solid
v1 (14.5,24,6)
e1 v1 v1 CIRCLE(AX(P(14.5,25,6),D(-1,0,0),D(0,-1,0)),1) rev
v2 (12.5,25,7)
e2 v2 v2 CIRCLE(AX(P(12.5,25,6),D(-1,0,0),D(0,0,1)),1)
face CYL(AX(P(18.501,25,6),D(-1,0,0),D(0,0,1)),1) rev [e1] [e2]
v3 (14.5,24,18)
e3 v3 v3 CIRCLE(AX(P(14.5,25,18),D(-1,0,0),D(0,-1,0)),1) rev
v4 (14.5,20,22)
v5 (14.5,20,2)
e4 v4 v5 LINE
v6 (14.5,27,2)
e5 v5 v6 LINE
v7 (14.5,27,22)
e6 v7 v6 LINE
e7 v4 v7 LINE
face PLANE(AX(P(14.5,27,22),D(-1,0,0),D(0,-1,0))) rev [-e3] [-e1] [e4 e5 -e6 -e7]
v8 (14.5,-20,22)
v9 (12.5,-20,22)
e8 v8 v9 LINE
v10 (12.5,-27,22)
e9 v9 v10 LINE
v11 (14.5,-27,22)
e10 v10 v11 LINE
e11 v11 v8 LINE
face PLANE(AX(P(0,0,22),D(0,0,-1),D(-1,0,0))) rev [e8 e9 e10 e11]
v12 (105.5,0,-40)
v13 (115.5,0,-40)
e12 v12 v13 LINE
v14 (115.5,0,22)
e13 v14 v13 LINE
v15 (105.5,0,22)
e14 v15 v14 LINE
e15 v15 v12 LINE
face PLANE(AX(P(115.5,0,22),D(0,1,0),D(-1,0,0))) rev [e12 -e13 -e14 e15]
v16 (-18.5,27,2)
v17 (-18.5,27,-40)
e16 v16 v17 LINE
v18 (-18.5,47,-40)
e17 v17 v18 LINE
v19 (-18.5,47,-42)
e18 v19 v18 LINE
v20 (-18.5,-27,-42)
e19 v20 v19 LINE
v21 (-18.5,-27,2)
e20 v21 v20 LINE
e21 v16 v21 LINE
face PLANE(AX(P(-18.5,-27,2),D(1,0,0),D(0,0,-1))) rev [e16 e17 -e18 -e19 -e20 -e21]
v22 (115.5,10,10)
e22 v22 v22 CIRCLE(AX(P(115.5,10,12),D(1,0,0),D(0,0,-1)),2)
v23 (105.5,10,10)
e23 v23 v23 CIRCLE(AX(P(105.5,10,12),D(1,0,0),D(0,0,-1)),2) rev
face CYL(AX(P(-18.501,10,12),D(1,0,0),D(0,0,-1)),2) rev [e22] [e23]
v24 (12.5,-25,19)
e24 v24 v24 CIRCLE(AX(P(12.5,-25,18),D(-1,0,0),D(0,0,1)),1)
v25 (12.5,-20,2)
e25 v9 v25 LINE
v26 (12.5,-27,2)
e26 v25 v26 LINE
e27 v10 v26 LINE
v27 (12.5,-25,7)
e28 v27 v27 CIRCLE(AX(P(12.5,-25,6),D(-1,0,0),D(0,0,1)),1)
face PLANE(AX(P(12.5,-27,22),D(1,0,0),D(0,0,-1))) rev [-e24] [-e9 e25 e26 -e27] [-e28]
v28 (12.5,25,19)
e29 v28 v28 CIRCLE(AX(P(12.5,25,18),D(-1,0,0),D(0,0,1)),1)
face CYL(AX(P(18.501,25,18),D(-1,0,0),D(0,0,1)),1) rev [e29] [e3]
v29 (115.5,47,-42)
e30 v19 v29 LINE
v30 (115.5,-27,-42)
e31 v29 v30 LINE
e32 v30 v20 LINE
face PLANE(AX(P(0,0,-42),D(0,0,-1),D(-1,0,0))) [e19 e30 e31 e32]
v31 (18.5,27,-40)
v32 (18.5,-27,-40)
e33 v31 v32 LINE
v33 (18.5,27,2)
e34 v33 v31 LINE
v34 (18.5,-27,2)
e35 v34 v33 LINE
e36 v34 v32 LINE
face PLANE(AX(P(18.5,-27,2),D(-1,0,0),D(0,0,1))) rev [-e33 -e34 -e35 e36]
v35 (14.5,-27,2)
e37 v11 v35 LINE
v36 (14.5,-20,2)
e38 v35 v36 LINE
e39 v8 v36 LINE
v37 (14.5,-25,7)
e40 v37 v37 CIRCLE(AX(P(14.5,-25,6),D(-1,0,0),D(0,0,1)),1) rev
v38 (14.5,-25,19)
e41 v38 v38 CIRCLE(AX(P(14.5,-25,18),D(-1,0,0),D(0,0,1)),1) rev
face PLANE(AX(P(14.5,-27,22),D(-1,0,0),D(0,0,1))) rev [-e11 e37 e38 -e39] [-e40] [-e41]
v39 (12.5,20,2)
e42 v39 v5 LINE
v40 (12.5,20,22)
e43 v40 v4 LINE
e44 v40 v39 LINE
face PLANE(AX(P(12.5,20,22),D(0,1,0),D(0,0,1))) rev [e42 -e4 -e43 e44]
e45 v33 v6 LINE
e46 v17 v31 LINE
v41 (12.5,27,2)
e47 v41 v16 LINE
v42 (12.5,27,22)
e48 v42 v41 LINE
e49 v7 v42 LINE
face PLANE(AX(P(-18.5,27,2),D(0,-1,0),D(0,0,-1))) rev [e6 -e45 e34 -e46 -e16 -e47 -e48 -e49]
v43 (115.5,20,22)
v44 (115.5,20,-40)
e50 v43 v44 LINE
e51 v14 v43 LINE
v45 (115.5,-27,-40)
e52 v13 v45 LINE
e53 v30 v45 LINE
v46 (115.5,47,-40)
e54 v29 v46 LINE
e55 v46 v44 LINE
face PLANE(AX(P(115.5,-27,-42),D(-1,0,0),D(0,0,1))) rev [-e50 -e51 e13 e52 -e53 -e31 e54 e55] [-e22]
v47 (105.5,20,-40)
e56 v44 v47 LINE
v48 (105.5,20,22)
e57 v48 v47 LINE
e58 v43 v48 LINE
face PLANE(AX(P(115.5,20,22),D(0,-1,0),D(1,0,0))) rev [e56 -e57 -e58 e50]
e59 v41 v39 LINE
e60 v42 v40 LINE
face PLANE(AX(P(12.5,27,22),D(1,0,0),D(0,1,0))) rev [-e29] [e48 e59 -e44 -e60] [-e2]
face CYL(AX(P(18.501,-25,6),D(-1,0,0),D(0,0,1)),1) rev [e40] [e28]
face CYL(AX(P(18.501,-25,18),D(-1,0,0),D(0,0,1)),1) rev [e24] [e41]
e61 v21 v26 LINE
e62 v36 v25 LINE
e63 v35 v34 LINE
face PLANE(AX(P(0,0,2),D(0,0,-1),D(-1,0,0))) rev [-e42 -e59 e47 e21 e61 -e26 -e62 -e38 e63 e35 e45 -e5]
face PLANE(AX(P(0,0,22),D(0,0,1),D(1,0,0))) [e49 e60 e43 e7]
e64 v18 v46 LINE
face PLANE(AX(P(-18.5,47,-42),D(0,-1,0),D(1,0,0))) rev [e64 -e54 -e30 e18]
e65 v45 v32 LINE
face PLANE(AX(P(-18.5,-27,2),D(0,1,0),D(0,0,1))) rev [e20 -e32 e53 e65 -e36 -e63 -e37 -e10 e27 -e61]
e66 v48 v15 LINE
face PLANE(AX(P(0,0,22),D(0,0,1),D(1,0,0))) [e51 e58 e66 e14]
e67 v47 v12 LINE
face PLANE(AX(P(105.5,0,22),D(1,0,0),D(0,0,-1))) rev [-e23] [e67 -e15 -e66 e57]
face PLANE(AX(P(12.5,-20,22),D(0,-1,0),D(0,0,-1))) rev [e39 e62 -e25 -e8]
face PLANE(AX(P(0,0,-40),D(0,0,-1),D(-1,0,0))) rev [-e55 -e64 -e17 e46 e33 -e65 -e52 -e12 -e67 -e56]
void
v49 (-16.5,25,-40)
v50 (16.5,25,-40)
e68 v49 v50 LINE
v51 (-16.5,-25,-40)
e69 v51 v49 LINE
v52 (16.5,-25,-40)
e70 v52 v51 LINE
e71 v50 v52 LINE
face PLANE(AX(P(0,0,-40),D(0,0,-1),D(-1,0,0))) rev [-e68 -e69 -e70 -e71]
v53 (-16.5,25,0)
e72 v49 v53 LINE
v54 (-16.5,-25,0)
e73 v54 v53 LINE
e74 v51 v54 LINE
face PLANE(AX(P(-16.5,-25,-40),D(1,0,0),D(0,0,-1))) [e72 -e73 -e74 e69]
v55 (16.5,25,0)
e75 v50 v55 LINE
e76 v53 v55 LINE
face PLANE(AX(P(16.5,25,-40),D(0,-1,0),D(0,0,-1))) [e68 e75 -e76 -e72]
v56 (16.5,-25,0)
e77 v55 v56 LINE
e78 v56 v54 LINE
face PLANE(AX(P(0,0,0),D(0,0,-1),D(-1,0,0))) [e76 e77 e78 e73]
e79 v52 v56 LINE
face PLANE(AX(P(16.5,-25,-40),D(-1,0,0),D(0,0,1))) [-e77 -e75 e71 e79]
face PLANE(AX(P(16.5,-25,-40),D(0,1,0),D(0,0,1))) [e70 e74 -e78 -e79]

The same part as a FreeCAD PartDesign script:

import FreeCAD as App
import Part
import Sketcher
Q = App.Units.Quantity


def add_polygon(sketch, points):
    """Adds a closed chain of lines whose ends are joined by coincident constraints."""
    first, n = sketch.GeometryCount, len(points)
    for a, b in zip(points, points[1:] + points[:1]):
        sketch.addGeometry(Part.LineSegment(App.Vector(*a, 0), App.Vector(*b, 0)), False)
    for i in range(n):
        sketch.addConstraint(Sketcher.Constraint("Coincident", first + i, 2, first + (i + 1) % n, 1))

doc = App.newDocument("Part")
params = doc.addObject("Spreadsheet::Sheet", "Params")
for row, (alias, value) in enumerate([
    ("sketch1_width", "37 mm"),
    ("sketch1_height", "54 mm"),
    ("pad1_length", "2 mm"),
    ("sketch2_width", "2 mm"),
    ("sketch2_height", "7 mm"),
    ("pad2_length", "20 mm"),
    ("sketch3_diameter", "2 mm"),
    ("sketch4_diameter", "2 mm"),
    ("sketch5_diameter", "2 mm"),
    ("sketch6_diameter", "2 mm"),
    ("sketch7_width", "37 mm"),
    ("sketch7_width2", "33 mm"),
    ("sketch7_height", "54 mm"),
    ("sketch7_height2", "50 mm"),
    ("pad3_length", "40 mm"),
    ("sketch8_width", "134 mm"),
    ("sketch8_height", "74 mm"),
    ("pad4_length", "2 mm"),
    ("sketch9_width", "10 mm"),
    ("sketch9_height", "20 mm"),
    ("pad5_length", "62 mm"),
    ("sketch10_diameter", "4 mm"),
], start=1):
    params.set(f"A{row}", alias)
    params.set(f"B{row}", "=" + value)
    params.setAlias(f"B{row}", alias)

body = doc.addObject("PartDesign::Body", "Body")

sketch1 = body.newObject("Sketcher::SketchObject", "Sketch")
sketch1.AttachmentSupport = (doc.getObject("XY_Plane"), [""])
sketch1.MapMode = "FlatFace"
add_polygon(sketch1, [(-18, 27), (-18, -27), (18, -27), (18, 27)])
sketch1.addConstraint([
    Sketcher.Constraint("Vertical", 0),
    Sketcher.Constraint("Horizontal", 1),
    Sketcher.Constraint("Vertical", 2),
    Sketcher.Constraint("Horizontal", 3),
    Sketcher.Constraint("Symmetric", 0, 2, 2, 2, -1, 1),
    Sketcher.Constraint("DistanceX", 1, 1, 1, 2, Q("37 mm")),
    Sketcher.Constraint("DistanceY", 0, 2, 0, 1, Q("54 mm")),
])
sketch1.setExpression("Constraints[9]", "Params.sketch1_width")
sketch1.setExpression("Constraints[10]", "Params.sketch1_height")
pad1 = body.newObject("PartDesign::Pad", "Pad")
pad1.Profile = sketch1
pad1.setExpression("Length", "Params.pad1_length")

sketch2 = body.newObject("Sketcher::SketchObject", "Sketch001")
sketch2.AttachmentSupport = (doc.getObject("XY_Plane"), [""])
sketch2.MapMode = "FlatFace"
sketch2.AttachmentOffset = App.Placement(App.Vector(0, 0, 2), App.Rotation())
add_polygon(sketch2, [(12.5, -20), (12.5, -27), (14.5, -27), (14.5, -20)])
add_polygon(sketch2, [(12.5, 27), (12.5, 20), (14.5, 20), (14.5, 27)])
sketch2.addConstraint([
    Sketcher.Constraint("Vertical", 0),
    Sketcher.Constraint("Horizontal", 1),
    Sketcher.Constraint("Vertical", 2),
    Sketcher.Constraint("Horizontal", 3),
    Sketcher.Constraint("Vertical", 4),
    Sketcher.Constraint("Horizontal", 5),
    Sketcher.Constraint("Vertical", 6),
    Sketcher.Constraint("Horizontal", 7),
    Sketcher.Constraint("Symmetric", 3, 2, 4, 2, -1),
    Sketcher.Constraint("Symmetric", 1, 2, 6, 2, -1),
    Sketcher.Constraint("DistanceX", 1, 1, 1, 2, Q("2 mm")),
    Sketcher.Constraint("DistanceY", 0, 2, 0, 1, Q("7 mm")),
    Sketcher.Constraint("DistanceY", 0, 2, -1, 1, Q("27 mm")),
    Sketcher.Constraint("DistanceX", -1, 1, 0, 2, Q("12.5 mm")),
])
sketch2.setExpression("Constraints[18]", "Params.sketch2_width")
sketch2.setExpression("Constraints[19]", "Params.sketch2_height")
pad2 = body.newObject("PartDesign::Pad", "Pad001")
pad2.Profile = sketch2
pad2.setExpression("Length", "Params.pad2_length")

sketch3 = body.newObject("Sketcher::SketchObject", "Sketch002")
sketch3.AttachmentSupport = (doc.getObject("YZ_Plane"), [""])
sketch3.MapMode = "FlatFace"
sketch3.AttachmentOffset = App.Placement(App.Vector(0, 0, 12.5), App.Rotation())
sketch3.addGeometry(Part.Circle(App.Vector(-25, 6, 0), App.Vector(0, 0, 1), 1), False)
sketch3.addConstraint([
    Sketcher.Constraint("Diameter", 0, Q("2 mm")),
    Sketcher.Constraint("DistanceX", 0, 3, -1, 1, Q("25 mm")),
    Sketcher.Constraint("DistanceY", -1, 1, 0, 3, Q("6 mm")),
])
sketch3.setExpression("Constraints[0]", "Params.sketch3_diameter")
pocket1 = body.newObject("PartDesign::Pocket", "Pocket")
pocket1.Profile = sketch3
pocket1.Type = "UpToFirst"
pocket1.Reversed = True

sketch4 = body.newObject("Sketcher::SketchObject", "Sketch003")
sketch4.AttachmentSupport = (doc.getObject("YZ_Plane"), [""])
sketch4.MapMode = "FlatFace"
sketch4.AttachmentOffset = App.Placement(App.Vector(0, 0, 12.5), App.Rotation())
sketch4.addGeometry(Part.Circle(App.Vector(-25, 18, 0), App.Vector(0, 0, 1), 1), False)
sketch4.addConstraint([
    Sketcher.Constraint("Diameter", 0, Q("2 mm")),
    Sketcher.Constraint("DistanceX", 0, 3, -1, 1, Q("25 mm")),
    Sketcher.Constraint("DistanceY", -1, 1, 0, 3, Q("18 mm")),
])
sketch4.setExpression("Constraints[0]", "Params.sketch4_diameter")
pocket2 = body.newObject("PartDesign::Pocket", "Pocket001")
pocket2.Profile = sketch4
pocket2.Type = "UpToFirst"
pocket2.Reversed = True

sketch5 = body.newObject("Sketcher::SketchObject", "Sketch004")
sketch5.AttachmentSupport = (doc.getObject("YZ_Plane"), [""])
sketch5.MapMode = "FlatFace"
sketch5.AttachmentOffset = App.Placement(App.Vector(0, 0, 12.5), App.Rotation())
sketch5.addGeometry(Part.Circle(App.Vector(25, 6, 0), App.Vector(0, 0, 1), 1), False)
sketch5.addConstraint([
    Sketcher.Constraint("Diameter", 0, Q("2 mm")),
    Sketcher.Constraint("DistanceX", -1, 1, 0, 3, Q("25 mm")),
    Sketcher.Constraint("DistanceY", -1, 1, 0, 3, Q("6 mm")),
])
sketch5.setExpression("Constraints[0]", "Params.sketch5_diameter")
pocket3 = body.newObject("PartDesign::Pocket", "Pocket002")
pocket3.Profile = sketch5
pocket3.Type = "UpToFirst"
pocket3.Reversed = True

sketch6 = body.newObject("Sketcher::SketchObject", "Sketch005")
sketch6.AttachmentSupport = (doc.getObject("YZ_Plane"), [""])
sketch6.MapMode = "FlatFace"
sketch6.AttachmentOffset = App.Placement(App.Vector(0, 0, 12.5), App.Rotation())
sketch6.addGeometry(Part.Circle(App.Vector(25, 18, 0), App.Vector(0, 0, 1), 1), False)
sketch6.addConstraint([
    Sketcher.Constraint("Diameter", 0, Q("2 mm")),
    Sketcher.Constraint("DistanceX", -1, 1, 0, 3, Q("25 mm")),
    Sketcher.Constraint("DistanceY", -1, 1, 0, 3, Q("18 mm")),
])
sketch6.setExpression("Constraints[0]", "Params.sketch6_diameter")
pocket4 = body.newObject("PartDesign::Pocket", "Pocket003")
pocket4.Profile = sketch6
pocket4.Type = "UpToFirst"
pocket4.Reversed = True

sketch7 = body.newObject("Sketcher::SketchObject", "Sketch006")
sketch7.AttachmentSupport = (doc.getObject("XY_Plane"), [""])
sketch7.MapMode = "FlatFace"
add_polygon(sketch7, [(18, 27), (18, -27), (-18, -27), (-18, 27)])
add_polygon(sketch7, [(-16, -25), (16, -25), (16, 25), (-16, 25)])
sketch7.addConstraint([
    Sketcher.Constraint("Vertical", 0),
    Sketcher.Constraint("Horizontal", 1),
    Sketcher.Constraint("Vertical", 2),
    Sketcher.Constraint("Horizontal", 3),
    Sketcher.Constraint("Horizontal", 4),
    Sketcher.Constraint("Vertical", 5),
    Sketcher.Constraint("Horizontal", 6),
    Sketcher.Constraint("Vertical", 7),
    Sketcher.Constraint("Symmetric", 0, 2, 2, 2, -1, 1),
    Sketcher.Constraint("Symmetric", 4, 2, 6, 2, -1, 1),
    Sketcher.Constraint("DistanceX", 1, 2, 1, 1, Q("37 mm")),
    Sketcher.Constraint("DistanceX", 4, 1, 4, 2, Q("33 mm")),
    Sketcher.Constraint("DistanceY", 0, 2, 0, 1, Q("54 mm")),
    Sketcher.Constraint("DistanceY", 5, 1, 5, 2, Q("50 mm")),
])
sketch7.setExpression("Constraints[18]", "Params.sketch7_width")
sketch7.setExpression("Constraints[19]", "Params.sketch7_width2")
sketch7.setExpression("Constraints[20]", "Params.sketch7_height")
sketch7.setExpression("Constraints[21]", "Params.sketch7_height2")
pad3 = body.newObject("PartDesign::Pad", "Pad002")
pad3.Profile = sketch7
pad3.setExpression("Length", "Params.pad3_length")
pad3.Reversed = True

sketch8 = body.newObject("Sketcher::SketchObject", "Sketch007")
sketch8.AttachmentSupport = (doc.getObject("XY_Plane"), [""])
sketch8.MapMode = "FlatFace"
sketch8.AttachmentOffset = App.Placement(App.Vector(0, 0, -40), App.Rotation())
add_polygon(sketch8, [(116, 47), (116, -27), (-18, -27), (-18, 47)])
sketch8.addConstraint([
    Sketcher.Constraint("Vertical", 0),
    Sketcher.Constraint("Horizontal", 1),
    Sketcher.Constraint("Vertical", 2),
    Sketcher.Constraint("Horizontal", 3),
    Sketcher.Constraint("DistanceX", 1, 2, 1, 1, Q("134 mm")),
    Sketcher.Constraint("DistanceY", 0, 2, 0, 1, Q("74 mm")),
    Sketcher.Constraint("DistanceY", 0, 2, -1, 1, Q("27 mm")),
    Sketcher.Constraint("DistanceX", -1, 1, 0, 2, Q("115.5 mm")),
])
sketch8.setExpression("Constraints[8]", "Params.sketch8_width")
sketch8.setExpression("Constraints[9]", "Params.sketch8_height")
pad4 = body.newObject("PartDesign::Pad", "Pad003")
pad4.Profile = sketch8
pad4.setExpression("Length", "Params.pad4_length")
pad4.Reversed = True

sketch9 = body.newObject("Sketcher::SketchObject", "Sketch008")
sketch9.AttachmentSupport = (doc.getObject("XY_Plane"), [""])
sketch9.MapMode = "FlatFace"
sketch9.AttachmentOffset = App.Placement(App.Vector(0, 0, -40), App.Rotation())
add_polygon(sketch9, [(106, 20), (106, 0), (116, 0), (116, 20)])
sketch9.addConstraint([
    Sketcher.Constraint("Vertical", 0),
    Sketcher.Constraint("Horizontal", 1),
    Sketcher.Constraint("Vertical", 2),
    Sketcher.Constraint("Horizontal", 3),
    Sketcher.Constraint("PointOnObject", 0, 2, -1),
    Sketcher.Constraint("DistanceX", 1, 1, 1, 2, Q("10 mm")),
    Sketcher.Constraint("DistanceY", 0, 2, 0, 1, Q("20 mm")),
    Sketcher.Constraint("DistanceX", -1, 1, 0, 2, Q("105.5 mm")),
])
sketch9.setExpression("Constraints[9]", "Params.sketch9_width")
sketch9.setExpression("Constraints[10]", "Params.sketch9_height")
pad5 = body.newObject("PartDesign::Pad", "Pad004")
pad5.Profile = sketch9
pad5.setExpression("Length", "Params.pad5_length")

sketch10 = body.newObject("Sketcher::SketchObject", "Sketch009")
sketch10.AttachmentSupport = (doc.getObject("YZ_Plane"), [""])
sketch10.MapMode = "FlatFace"
sketch10.AttachmentOffset = App.Placement(App.Vector(0, 0, 115.5), App.Rotation())
sketch10.addGeometry(Part.Circle(App.Vector(10, 12, 0), App.Vector(0, 0, 1), 2), False)
sketch10.addConstraint([
    Sketcher.Constraint("Diameter", 0, Q("4 mm")),
    Sketcher.Constraint("DistanceX", -1, 1, 0, 3, Q("10 mm")),
    Sketcher.Constraint("DistanceY", -1, 1, 0, 3, Q("12 mm")),
])
sketch10.setExpression("Constraints[0]", "Params.sketch10_diameter")
pocket5 = body.newObject("PartDesign::Pocket", "Pocket004")
pocket5.Profile = sketch10
pocket5.Type = "UpToFirst"

doc.recompute()
